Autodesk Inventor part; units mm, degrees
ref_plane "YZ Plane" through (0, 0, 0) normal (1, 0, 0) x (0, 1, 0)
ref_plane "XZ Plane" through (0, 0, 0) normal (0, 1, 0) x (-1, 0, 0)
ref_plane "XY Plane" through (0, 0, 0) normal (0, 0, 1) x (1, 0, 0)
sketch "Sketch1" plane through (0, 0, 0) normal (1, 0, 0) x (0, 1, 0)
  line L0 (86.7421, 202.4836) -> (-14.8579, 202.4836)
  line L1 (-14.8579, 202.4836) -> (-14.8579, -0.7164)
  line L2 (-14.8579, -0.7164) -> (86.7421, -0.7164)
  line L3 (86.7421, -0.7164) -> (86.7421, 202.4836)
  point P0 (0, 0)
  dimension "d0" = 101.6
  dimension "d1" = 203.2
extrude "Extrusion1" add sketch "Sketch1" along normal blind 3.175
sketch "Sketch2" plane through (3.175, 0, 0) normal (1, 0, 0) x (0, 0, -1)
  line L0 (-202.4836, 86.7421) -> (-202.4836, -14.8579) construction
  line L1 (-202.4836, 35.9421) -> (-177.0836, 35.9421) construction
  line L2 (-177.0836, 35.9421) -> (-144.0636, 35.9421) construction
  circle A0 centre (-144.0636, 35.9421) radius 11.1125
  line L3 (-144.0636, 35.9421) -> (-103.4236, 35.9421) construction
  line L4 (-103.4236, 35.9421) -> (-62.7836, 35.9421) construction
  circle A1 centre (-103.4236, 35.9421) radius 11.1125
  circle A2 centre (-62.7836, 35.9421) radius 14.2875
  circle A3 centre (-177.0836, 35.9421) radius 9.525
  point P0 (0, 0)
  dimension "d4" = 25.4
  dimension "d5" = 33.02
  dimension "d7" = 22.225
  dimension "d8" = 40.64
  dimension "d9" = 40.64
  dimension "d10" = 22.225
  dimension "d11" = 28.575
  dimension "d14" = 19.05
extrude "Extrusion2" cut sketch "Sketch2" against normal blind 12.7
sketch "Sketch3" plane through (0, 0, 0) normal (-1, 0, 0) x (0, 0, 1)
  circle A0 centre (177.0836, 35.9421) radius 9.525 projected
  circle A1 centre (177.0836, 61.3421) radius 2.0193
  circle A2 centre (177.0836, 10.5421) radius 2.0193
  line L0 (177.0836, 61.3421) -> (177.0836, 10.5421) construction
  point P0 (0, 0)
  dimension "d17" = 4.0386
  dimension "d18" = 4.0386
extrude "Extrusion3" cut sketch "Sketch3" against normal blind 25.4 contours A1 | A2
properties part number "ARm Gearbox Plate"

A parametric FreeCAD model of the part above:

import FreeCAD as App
import Part
import Sketcher
from FreeCAD import Vector
Q = App.Units.Quantity


def add_polygon(sketch, points):
    """Adds a closed chain of lines whose ends are joined by coincident constraints."""
    first, n = sketch.GeometryCount, len(points)
    for a, b in zip(points, points[1:] + points[:1]):
        sketch.addGeometry(Part.LineSegment(App.Vector(*a, 0), App.Vector(*b, 0)), False)
    for i in range(n):
        sketch.addConstraint(Sketcher.Constraint("Coincident", first + i, 2, first + (i + 1) % n, 1))

doc = App.newDocument("Part")
params = doc.addObject("Spreadsheet::Sheet", "Params")
for row, (alias, value) in enumerate([
    ("sketch1_width", "4 in"),
    ("sketch1_height", "8 in"),
    ("pad1_length", "0.125 in"),
    ("sketch2_diameter", "0.75 in"),
    ("sketch2_diameter2", "0.875 in"),
    ("sketch2_diameter3", "1.125 in"),
    ("pocket1_length", "0.5 in"),
    ("sketch3_diameter", "0.159 in"),
    ("pocket2_length", "1 in"),
], start=1):
    params.set(f"A{row}", alias)
    params.set(f"B{row}", "=" + value)
    params.setAlias(f"B{row}", alias)

body = doc.addObject("PartDesign::Body", "Body")

sketch1 = body.newObject("Sketcher::SketchObject", "Sketch")
sketch1.AttachmentSupport = (doc.getObject("YZ_Plane"), [""])
sketch1.MapMode = "FlatFace"
add_polygon(sketch1, [(87, -1), (87, 202), (-15, 202), (-15, -1)])
sketch1.addConstraint([
    Sketcher.Constraint("Vertical", 0),
    Sketcher.Constraint("Horizontal", 1),
    Sketcher.Constraint("Vertical", 2),
    Sketcher.Constraint("Horizontal", 3),
    Sketcher.Constraint("DistanceX", 1, 2, 1, 1, Q("4 in")),
    Sketcher.Constraint("DistanceY", 0, 1, 0, 2, Q("8 in")),
    Sketcher.Constraint("DistanceY", -1, 1, 0, 2, Q("7.9718 in")),
    Sketcher.Constraint("DistanceX", -1, 1, 0, 2, Q("86.742 mm")),
])
sketch1.setExpression("Constraints[8]", "Params.sketch1_width")
sketch1.setExpression("Constraints[9]", "Params.sketch1_height")
pad1 = body.newObject("PartDesign::Pad", "Pad")
pad1.Profile = sketch1
pad1.setExpression("Length", "Params.pad1_length")

sketch2 = body.newObject("Sketcher::SketchObject", "Sketch001")
sketch2.AttachmentSupport = (doc.getObject("YZ_Plane"), [""])
sketch2.MapMode = "FlatFace"
sketch2.AttachmentOffset = App.Placement(Vector(0, 0, 0.125 * 25.4), App.Rotation())
sketch2.addGeometry([
    Part.Circle(Vector(36, 144, 0), Vector(0, 0, 1), 11),
    Part.Circle(Vector(36, 103, 0), Vector(0, 0, 1), 11),
    Part.Circle(Vector(36, 63, 0), Vector(0, 0, 1), 14),
    Part.Circle(Vector(36, 177, 0), Vector(0, 0, 1), 10),
], False)
sketch2.addConstraint([
    Sketcher.Constraint("Equal", 0, 1),
    Sketcher.Constraint("Vertical", 0, 3, 1, 3),
    Sketcher.Constraint("Vertical", 1, 3, 2, 3),
    Sketcher.Constraint("Vertical", 2, 3, 3, 3),
    Sketcher.Constraint("Diameter", 3, Q("0.75 in")),
    Sketcher.Constraint("Diameter", 0, Q("0.875 in")),
    Sketcher.Constraint("Diameter", 2, Q("1.125 in")),
    Sketcher.Constraint("DistanceY", 1, 3, 0, 3, Q("1.6 in")),
    Sketcher.Constraint("DistanceY", 2, 3, 1, 3, Q("1.6 in")),
    Sketcher.Constraint("DistanceY", 0, 3, 3, 3, Q("1.3 in")),
    Sketcher.Constraint("DistanceY", -1, 1, 0, 3, Q("5.6718 in")),
    Sketcher.Constraint("DistanceX", -1, 1, 0, 3, Q("35.942 mm")),
])
sketch2.setExpression("Constraints[4]", "Params.sketch2_diameter")
sketch2.setExpression("Constraints[5]", "Params.sketch2_diameter2")
sketch2.setExpression("Constraints[6]", "Params.sketch2_diameter3")
pocket1 = body.newObject("PartDesign::Pocket", "Pocket")
pocket1.Profile = sketch2
pocket1.setExpression("Length", "Params.pocket1_length")

sketch3 = body.newObject("Sketcher::SketchObject", "Sketch002")
sketch3.AttachmentSupport = (doc.getObject("YZ_Plane"), [""])
sketch3.MapMode = "FlatFace"
sketch3.addGeometry([
    Part.Circle(Vector(61.3, 177.1, 0), Vector(0, 0, 1), 2),
    Part.Circle(Vector(10.5, 177.1, 0), Vector(0, 0, 1), 2),
], False)
sketch3.addConstraint([
    Sketcher.Constraint("Equal", 0, 1),
    Sketcher.Constraint("Horizontal", 0, 3, 1, 3),
    Sketcher.Constraint("Diameter", 0, Q("0.159 in")),
    Sketcher.Constraint("DistanceX", 1, 3, 0, 3, Q("2 in")),
    Sketcher.Constraint("DistanceY", -1, 1, 0, 3, Q("6.9718 in")),
    Sketcher.Constraint("DistanceX", -1, 1, 0, 3, Q("61.342 mm")),
])
sketch3.setExpression("Constraints[2]", "Params.sketch3_diameter")
pocket2 = body.newObject("PartDesign::Pocket", "Pocket001")
pocket2.Profile = sketch3
pocket2.setExpression("Length", "Params.pocket2_length")
pocket2.Reversed = True

doc.recompute()
